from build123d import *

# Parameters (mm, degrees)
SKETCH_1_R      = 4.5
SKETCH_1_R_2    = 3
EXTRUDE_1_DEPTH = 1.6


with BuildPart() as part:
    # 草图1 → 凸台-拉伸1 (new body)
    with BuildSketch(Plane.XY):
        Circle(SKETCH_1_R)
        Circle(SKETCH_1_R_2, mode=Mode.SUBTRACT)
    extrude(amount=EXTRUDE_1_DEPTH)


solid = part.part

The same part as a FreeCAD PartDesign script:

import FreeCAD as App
import Part
import Sketcher
Q = App.Units.Quantity

doc = App.newDocument("Part")
body = doc.addObject("PartDesign::Body", "Body")

# Sketch on XY plane
sketch1 = body.newObject("Sketcher::SketchObject", "Sketch")
sketch1.AttachmentSupport = (doc.getObject("XY_Plane"), [""])
sketch1.MapMode = "FlatFace"
sketch1.addGeometry([
    Part.Circle(App.Vector(0, 0, 0), App.Vector(0, 0, 1), 4.5),
    Part.Circle(App.Vector(0, 0, 0), App.Vector(0, 0, 1), 3),
], False)
sketch1.addConstraint([
    Sketcher.Constraint("Coincident", 0, 3, -1, 1),
    Sketcher.Constraint("Coincident", 1, 3, -1, 1),
    Sketcher.Constraint("Diameter", 0, Q("9 mm")),
    Sketcher.Constraint("Diameter", 1, Q("6 mm")),
])
pad1 = body.newObject("PartDesign::Pad", "Pad")
pad1.Profile = sketch1
pad1.Length = 1.6

doc.recompute()
